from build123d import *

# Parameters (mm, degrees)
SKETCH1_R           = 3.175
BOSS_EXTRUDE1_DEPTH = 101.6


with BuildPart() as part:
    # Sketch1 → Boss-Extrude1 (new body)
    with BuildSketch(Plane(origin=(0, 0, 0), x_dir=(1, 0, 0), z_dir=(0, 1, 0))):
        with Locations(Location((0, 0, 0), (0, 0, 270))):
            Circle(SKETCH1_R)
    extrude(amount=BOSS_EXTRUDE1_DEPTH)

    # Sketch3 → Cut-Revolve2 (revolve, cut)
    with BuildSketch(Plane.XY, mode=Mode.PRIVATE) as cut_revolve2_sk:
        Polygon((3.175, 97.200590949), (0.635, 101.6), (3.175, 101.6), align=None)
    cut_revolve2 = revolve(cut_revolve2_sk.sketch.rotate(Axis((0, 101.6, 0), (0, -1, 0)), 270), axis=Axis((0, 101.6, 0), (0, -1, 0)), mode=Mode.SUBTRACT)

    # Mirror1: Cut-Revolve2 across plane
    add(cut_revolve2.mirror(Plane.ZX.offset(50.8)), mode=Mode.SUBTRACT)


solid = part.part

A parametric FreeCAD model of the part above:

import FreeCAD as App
import Part
import Sketcher

V = App.Vector
Q = App.Units.Quantity


def add_polygon(sketch, points):
    """Adds a closed chain of lines whose ends are joined by coincident constraints."""
    first, n = sketch.GeometryCount, len(points)
    for a, b in zip(points, points[1:] + points[:1]):
        sketch.addGeometry(Part.LineSegment(App.Vector(*a, 0), App.Vector(*b, 0)), False)
    for i in range(n):
        sketch.addConstraint(Sketcher.Constraint("Coincident", first + i, 2, first + (i + 1) % n, 1))

doc = App.newDocument("Part")
body = doc.addObject("PartDesign::Body", "Body")

# Sketch on XZ plane
sketch1 = doc.addObject("Sketcher::SketchObject", "Sketch")
body.addObject(sketch1)
sketch1.AttachmentSupport = (doc.XZ_Plane, [""])
sketch1.MapMode = "FlatFace"
sketch1.addGeometry(Part.Circle(V(0, 0, 0), V(0, 0, 1), 3.175), False)
sketch1.addConstraint(Sketcher.Constraint("Coincident", 0, 3, -1, 1))
sketch1.addConstraint(Sketcher.Constraint("Diameter", 0, Q("0.25 in")))
pad1 = doc.addObject("PartDesign::Pad", "Pad")
body.addObject(pad1)
pad1.Profile = sketch1
pad1.Length = Q("4 in")
pad1.Reversed = True

# Sketch on XY plane
sketch2 = doc.addObject("Sketcher::SketchObject", "Sketch001")
body.addObject(sketch2)
sketch2.AttachmentSupport = (doc.XY_Plane, [""])
sketch2.MapMode = "FlatFace"
add_polygon(sketch2, [(0.635, 101.6), (3.175, 97.200591), (3.175, 101.6)])  # lines 0-2
sketch2.addConstraint(Sketcher.Constraint("Vertical", 1))
sketch2.addConstraint(Sketcher.Constraint("Horizontal", 2))
sketch2.addConstraint(Sketcher.Constraint("DistanceX", 2, 2, 2, 1, Q("0.1 in")))
sketch2.addConstraint(Sketcher.Constraint("DistanceY", -1, 1, 1, 2, Q("4 in")))
sketch2.addConstraint(Sketcher.Constraint("Angle", 0, Q("-60 deg")))
sketch2.addConstraint(Sketcher.Constraint("DistanceX", -1, 1, 0, 2, Q("0.125 in")))
groove = doc.addObject("PartDesign::Groove", "Groove")
body.addObject(groove)
groove.Profile = sketch2
groove.ReferenceAxis = (sketch2, ["V_Axis"])
groove.Angle = 360
doc.recompute()

datumplane = doc.addObject("PartDesign::Plane", "DatumPlane")
body.addObject(datumplane)
datumplane.AttachmentSupport = (doc.XZ_Plane, [""])
datumplane.MapMode = "FlatFace"
datumplane.AttachmentOffset = App.Placement(V(0, 0, -2 * 25.4), App.Rotation())
mirrored = doc.addObject("PartDesign::Mirrored", "Mirrored")
body.addObject(mirrored)
mirrored.Originals = [groove]
mirrored.MirrorPlane = (datumplane, [""])
body.Tip = mirrored

doc.recompute()
